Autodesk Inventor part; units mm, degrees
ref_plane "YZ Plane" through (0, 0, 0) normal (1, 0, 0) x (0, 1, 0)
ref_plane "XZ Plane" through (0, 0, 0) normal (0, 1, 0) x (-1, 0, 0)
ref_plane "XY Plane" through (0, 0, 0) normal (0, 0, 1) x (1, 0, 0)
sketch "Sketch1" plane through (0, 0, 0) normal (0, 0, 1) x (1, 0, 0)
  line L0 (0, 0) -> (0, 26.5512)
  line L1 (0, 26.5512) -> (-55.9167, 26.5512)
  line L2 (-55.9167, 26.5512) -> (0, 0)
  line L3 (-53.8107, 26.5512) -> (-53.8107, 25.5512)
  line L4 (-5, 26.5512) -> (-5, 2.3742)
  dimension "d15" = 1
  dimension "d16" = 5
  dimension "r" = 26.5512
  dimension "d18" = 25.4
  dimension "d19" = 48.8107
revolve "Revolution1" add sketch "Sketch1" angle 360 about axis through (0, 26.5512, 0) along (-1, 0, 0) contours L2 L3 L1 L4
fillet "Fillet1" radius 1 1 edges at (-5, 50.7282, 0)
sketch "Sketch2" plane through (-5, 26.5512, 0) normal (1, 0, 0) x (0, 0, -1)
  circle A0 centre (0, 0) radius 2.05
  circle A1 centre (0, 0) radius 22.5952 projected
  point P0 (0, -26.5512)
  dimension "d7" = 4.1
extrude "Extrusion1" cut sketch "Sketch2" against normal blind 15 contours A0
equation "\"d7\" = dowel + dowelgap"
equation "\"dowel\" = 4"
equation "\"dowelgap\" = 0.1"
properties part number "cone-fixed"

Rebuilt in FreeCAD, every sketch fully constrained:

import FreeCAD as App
import Part
import Sketcher

V = App.Vector
Q = App.Units.Quantity


def edges_at(feature, points):
    """Names of the edges that pass closest to the given points."""
    edges = feature.Shape.Edges
    near = lambda p: min(range(len(edges)), key=lambda i: edges[i].distToShape(Part.Vertex(*p))[0])
    return sorted({f"Edge{near(p) + 1}" for p in points})

doc = App.newDocument("Part")
body = doc.addObject("PartDesign::Body", "Body")

# Sketch on XY plane
sketch1 = body.newObject("Sketcher::SketchObject", "Sketch")
sketch1.AttachmentSupport = (doc.getObject("XY_Plane"), [""])
sketch1.MapMode = "FlatFace"
sketch1.addGeometry(Part.LineSegment(V(-53.8, 25.6, 0), V(-5, 2.4, 0)), False)
sketch1.addGeometry(Part.LineSegment(V(-5, 2.4, 0), V(-5, 26.6, 0)), False)
sketch1.addGeometry(Part.LineSegment(V(-5, 26.6, 0), V(-53.8, 26.6, 0)), False)
sketch1.addGeometry(Part.LineSegment(V(-53.8, 26.6, 0), V(-53.8, 25.6, 0)), False)
sketch1.addGeometry(Part.LineSegment(V(-5, 26.6, 0), V(-53.8, 26.6, 0)), True)  # axis
sketch1.addConstraint(Sketcher.Constraint("Coincident", 0, 2, 1, 1))
sketch1.addConstraint(Sketcher.Constraint("Coincident", 1, 2, 2, 1))
sketch1.addConstraint(Sketcher.Constraint("Coincident", 2, 2, 3, 1))
sketch1.addConstraint(Sketcher.Constraint("Coincident", 3, 2, 0, 1))
sketch1.addConstraint(Sketcher.Constraint("Vertical", 1))
sketch1.addConstraint(Sketcher.Constraint("Horizontal", 2))
sketch1.addConstraint(Sketcher.Constraint("Vertical", 3))
sketch1.addConstraint(Sketcher.Constraint("Horizontal", 4))
sketch1.addConstraint(Sketcher.Constraint("Coincident", 4, 1, 1, 2))
sketch1.addConstraint(Sketcher.Constraint("Vertical", 3, 2, 4, 2))
sketch1.addConstraint(Sketcher.Constraint("DistanceY", 3, 2, 3, 1, 1.0))
sketch1.addConstraint(Sketcher.Constraint("DistanceX", 0, 2, -1, 1, 5.0))
sketch1.addConstraint(Sketcher.Constraint("Angle", 0, Q("-25.4 deg")))
sketch1.addConstraint(Sketcher.Constraint("DistanceX", 2, 2, 2, 1, 48.8107))
sketch1.addConstraint(Sketcher.Constraint("DistanceY", -1, 1, 1, 2, 26.5512))
revolution = body.newObject("PartDesign::Revolution", "Revolution")
revolution.Profile = sketch1
revolution.ReferenceAxis = (sketch1, ["Axis0"])
revolution.Angle = 360
doc.recompute()

fillet = body.newObject("PartDesign::Fillet", "Fillet")
fillet.Base = (revolution, edges_at(revolution, [(-5, 50.728, 0)]))
fillet.Radius = 1

# Sketch on YZ plane
sketch2 = body.newObject("Sketcher::SketchObject", "Sketch001")
sketch2.AttachmentSupport = (doc.getObject("YZ_Plane"), [""])
sketch2.MapMode = "FlatFace"
sketch2.AttachmentOffset = App.Placement(V(0, 0, -5), App.Rotation())
sketch2.addGeometry(Part.Circle(V(26.6, 0, 0), V(0, 0, 1), 2), False)
sketch2.addConstraint(Sketcher.Constraint("PointOnObject", 0, 3, -1))
sketch2.addConstraint(Sketcher.Constraint("Diameter", 0, 4.1))
sketch2.addConstraint(Sketcher.Constraint("DistanceX", -1, 1, 0, 3, 26.5512))
pocket1 = body.newObject("PartDesign::Pocket", "Pocket")
pocket1.Profile = sketch2
pocket1.Length = 15

doc.recompute()
